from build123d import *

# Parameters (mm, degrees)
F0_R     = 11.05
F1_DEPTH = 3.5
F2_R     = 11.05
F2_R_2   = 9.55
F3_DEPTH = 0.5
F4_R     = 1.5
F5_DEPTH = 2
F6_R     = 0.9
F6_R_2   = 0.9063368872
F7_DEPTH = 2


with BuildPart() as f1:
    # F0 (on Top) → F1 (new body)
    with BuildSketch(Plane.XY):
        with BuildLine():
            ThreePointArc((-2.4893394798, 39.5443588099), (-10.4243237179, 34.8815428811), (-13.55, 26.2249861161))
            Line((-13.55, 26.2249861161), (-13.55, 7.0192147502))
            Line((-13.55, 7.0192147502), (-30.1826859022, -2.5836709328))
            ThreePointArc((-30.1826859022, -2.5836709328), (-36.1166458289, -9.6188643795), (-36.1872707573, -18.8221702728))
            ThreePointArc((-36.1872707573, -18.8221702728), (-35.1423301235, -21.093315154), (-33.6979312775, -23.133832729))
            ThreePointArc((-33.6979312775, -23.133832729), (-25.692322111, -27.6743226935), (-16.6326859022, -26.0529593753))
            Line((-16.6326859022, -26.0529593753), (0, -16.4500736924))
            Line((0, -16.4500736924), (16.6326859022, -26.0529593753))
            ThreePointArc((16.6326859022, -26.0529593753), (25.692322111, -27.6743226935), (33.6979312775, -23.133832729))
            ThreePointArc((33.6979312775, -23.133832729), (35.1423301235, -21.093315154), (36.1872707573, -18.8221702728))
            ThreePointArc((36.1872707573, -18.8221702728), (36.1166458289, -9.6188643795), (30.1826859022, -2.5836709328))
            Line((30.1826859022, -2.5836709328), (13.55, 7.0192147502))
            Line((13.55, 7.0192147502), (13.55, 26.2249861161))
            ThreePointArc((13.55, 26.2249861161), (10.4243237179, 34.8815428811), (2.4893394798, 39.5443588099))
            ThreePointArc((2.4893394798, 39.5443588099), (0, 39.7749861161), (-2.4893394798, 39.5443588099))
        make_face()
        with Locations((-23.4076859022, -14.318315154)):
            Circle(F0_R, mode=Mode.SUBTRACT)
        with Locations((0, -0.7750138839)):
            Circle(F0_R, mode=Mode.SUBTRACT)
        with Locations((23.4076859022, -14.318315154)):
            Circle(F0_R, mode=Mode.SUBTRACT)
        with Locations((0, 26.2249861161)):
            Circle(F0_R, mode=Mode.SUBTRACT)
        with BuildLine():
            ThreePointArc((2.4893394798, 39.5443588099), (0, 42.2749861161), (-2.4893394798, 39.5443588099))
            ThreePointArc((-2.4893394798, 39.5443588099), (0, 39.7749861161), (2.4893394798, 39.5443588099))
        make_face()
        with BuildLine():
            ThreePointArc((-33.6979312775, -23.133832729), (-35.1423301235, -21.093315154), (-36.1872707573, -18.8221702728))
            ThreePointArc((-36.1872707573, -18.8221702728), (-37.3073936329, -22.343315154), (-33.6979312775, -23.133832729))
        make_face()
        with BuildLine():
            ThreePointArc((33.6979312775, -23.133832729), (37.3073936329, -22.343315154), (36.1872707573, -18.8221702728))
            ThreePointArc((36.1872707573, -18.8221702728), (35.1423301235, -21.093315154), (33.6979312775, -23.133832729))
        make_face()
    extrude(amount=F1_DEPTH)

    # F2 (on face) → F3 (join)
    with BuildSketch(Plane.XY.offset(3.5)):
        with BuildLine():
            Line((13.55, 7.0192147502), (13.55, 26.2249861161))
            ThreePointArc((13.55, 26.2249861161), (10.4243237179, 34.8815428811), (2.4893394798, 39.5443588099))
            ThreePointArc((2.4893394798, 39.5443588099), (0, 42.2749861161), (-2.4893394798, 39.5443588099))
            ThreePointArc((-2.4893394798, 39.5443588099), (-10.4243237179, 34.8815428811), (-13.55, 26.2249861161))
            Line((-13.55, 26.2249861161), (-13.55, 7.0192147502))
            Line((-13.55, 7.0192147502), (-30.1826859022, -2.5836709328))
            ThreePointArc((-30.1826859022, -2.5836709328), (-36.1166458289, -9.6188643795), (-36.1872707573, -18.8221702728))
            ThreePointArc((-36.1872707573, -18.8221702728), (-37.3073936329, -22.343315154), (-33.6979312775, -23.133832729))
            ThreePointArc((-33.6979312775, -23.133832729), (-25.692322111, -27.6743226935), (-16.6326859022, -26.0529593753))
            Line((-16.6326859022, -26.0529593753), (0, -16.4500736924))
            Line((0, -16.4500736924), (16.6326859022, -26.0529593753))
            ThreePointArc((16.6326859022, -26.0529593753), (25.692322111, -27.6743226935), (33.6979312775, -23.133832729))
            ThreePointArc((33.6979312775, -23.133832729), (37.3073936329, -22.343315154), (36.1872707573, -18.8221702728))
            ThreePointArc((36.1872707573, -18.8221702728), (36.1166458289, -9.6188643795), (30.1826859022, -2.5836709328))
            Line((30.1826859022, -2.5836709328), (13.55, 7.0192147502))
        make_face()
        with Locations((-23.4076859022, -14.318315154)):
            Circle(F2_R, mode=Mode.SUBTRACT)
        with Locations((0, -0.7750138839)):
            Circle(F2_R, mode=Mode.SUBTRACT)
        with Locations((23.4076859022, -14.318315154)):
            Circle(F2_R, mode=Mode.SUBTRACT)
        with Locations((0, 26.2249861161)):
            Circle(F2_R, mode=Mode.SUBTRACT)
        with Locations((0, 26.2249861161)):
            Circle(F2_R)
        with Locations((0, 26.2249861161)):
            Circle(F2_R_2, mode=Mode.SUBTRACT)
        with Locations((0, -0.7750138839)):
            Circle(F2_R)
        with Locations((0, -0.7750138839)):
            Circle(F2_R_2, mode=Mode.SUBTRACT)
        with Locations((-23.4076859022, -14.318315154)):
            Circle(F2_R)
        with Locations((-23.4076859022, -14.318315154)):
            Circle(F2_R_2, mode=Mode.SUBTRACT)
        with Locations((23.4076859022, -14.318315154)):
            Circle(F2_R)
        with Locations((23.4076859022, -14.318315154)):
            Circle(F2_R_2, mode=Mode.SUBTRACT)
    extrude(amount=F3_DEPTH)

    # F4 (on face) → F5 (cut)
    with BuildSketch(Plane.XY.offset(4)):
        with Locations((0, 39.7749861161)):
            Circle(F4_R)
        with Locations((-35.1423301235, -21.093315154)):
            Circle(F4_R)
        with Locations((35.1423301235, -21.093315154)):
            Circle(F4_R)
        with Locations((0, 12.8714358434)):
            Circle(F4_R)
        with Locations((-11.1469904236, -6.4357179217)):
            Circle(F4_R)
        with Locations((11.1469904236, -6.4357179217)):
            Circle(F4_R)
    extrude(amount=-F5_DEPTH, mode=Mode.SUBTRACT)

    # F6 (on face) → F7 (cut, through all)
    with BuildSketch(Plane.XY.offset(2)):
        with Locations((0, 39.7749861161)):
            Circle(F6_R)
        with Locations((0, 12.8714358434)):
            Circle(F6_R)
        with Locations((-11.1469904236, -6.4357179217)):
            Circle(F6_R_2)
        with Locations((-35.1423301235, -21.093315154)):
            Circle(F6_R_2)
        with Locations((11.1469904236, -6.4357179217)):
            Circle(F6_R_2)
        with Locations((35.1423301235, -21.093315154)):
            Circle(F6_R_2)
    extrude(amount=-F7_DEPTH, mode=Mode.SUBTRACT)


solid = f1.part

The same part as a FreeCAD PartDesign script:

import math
import FreeCAD as App
import Part
import Sketcher
from FreeCAD import Vector

doc = App.newDocument("Part")
body = doc.addObject("PartDesign::Body", "Body")

# Sketch on XY plane
sketch1 = doc.addObject("Sketcher::SketchObject", "Sketch")
body.addObject(sketch1)
sketch1.AttachmentSupport = (doc.XY_Plane, [""])
sketch1.MapMode = "FlatFace"
sketch1.addGeometry([
    Part.ArcOfCircle(Part.Circle(Vector(0, 26.2, 0), Vector(0, 0, 1), 13.6), math.radians(101), math.radians(180)),  # 0
    Part.LineSegment(Vector(-13.6, 26.2, 0), Vector(-13.6, 7, 0)),  # 1
    Part.LineSegment(Vector(-13.6, 7, 0), Vector(-30.2, -2.6, 0)),  # 2
    Part.ArcOfCircle(Part.Circle(Vector(-23.4, -14.3, 0), Vector(0, 0, 1), 13.6), math.radians(120), math.radians(199)),  # 3
    Part.ArcOfCircle(Part.Circle(Vector(-35.1, -21.1, 0), Vector(0, 0, 1), 2.5), math.radians(115), math.radians(305)),  # 4
    Part.ArcOfCircle(Part.Circle(Vector(-23.4, -14.3, 0), Vector(0, 0, 1), 13.6), math.radians(-139), math.radians(-60)),  # 5
    Part.LineSegment(Vector(-16.6, -26.1, 0), Vector(0, -16.5, 0)),  # 6
    Part.LineSegment(Vector(0, -16.5, 0), Vector(16.6, -26.1, 0)),  # 7
    Part.ArcOfCircle(Part.Circle(Vector(23.4, -14.3, 0), Vector(0, 0, 1), 13.6), math.radians(-120), math.radians(-41)),  # 8
    Part.ArcOfCircle(Part.Circle(Vector(35.1, -21.1, 0), Vector(0, 0, 1), 2.5), math.radians(-125), math.radians(65)),  # 9
    Part.ArcOfCircle(Part.Circle(Vector(23.4, -14.3, 0), Vector(0, 0, 1), 13.6), math.radians(-19), math.radians(60)),  # 10
    Part.LineSegment(Vector(30.2, -2.6, 0), Vector(13.6, 7, 0)),  # 11
    Part.LineSegment(Vector(13.6, 7, 0), Vector(13.6, 26.2, 0)),  # 12
    Part.ArcOfCircle(Part.Circle(Vector(0, 26.2, 0), Vector(0, 0, 1), 13.6), math.radians(0), math.radians(79)),  # 13
    Part.ArcOfCircle(Part.Circle(Vector(0, 39.8, 0), Vector(0, 0, 1), 2.5), math.radians(-5), math.radians(185)),  # 14
    Part.Circle(Vector(-23.4, -14.3, 0), Vector(0, 0, 1), 11.1),  # 15
    Part.Circle(Vector(23.4, -14.3, 0), Vector(0, 0, 1), 11.1),  # 16
    Part.Circle(Vector(0, -0.8, 0), Vector(0, 0, 1), 11.1),  # 17
    Part.Circle(Vector(0, 26.2, 0), Vector(0, 0, 1), 11.1),  # 18
], False)
sketch1.addConstraint([
    Sketcher.Constraint("Tangent", 0, 2, 1, 1),
    Sketcher.Constraint("Coincident", 1, 2, 2, 1),
    Sketcher.Constraint("Tangent", 2, 2, 3, 1),
    Sketcher.Constraint("Coincident", 3, 2, 4, 1),
    Sketcher.Constraint("Coincident", 4, 2, 5, 1),
    Sketcher.Constraint("Tangent", 5, 2, 6, 1),
    Sketcher.Constraint("Coincident", 6, 2, 7, 1),
    Sketcher.Constraint("Tangent", 7, 2, 8, 1),
    Sketcher.Constraint("Coincident", 8, 2, 9, 1),
    Sketcher.Constraint("Coincident", 9, 2, 10, 1),
    Sketcher.Constraint("Tangent", 10, 2, 11, 1),
    Sketcher.Constraint("Coincident", 11, 2, 12, 1),
    Sketcher.Constraint("Tangent", 12, 2, 13, 1),
    Sketcher.Constraint("Coincident", 13, 2, 14, 1),
    Sketcher.Constraint("Coincident", 14, 2, 0, 1),
    Sketcher.Constraint("Vertical", 1),
    Sketcher.Constraint("Vertical", 12),
    Sketcher.Constraint("Coincident", 5, 3, 3, 3),
    Sketcher.Constraint("Coincident", 10, 3, 8, 3),
    Sketcher.Constraint("Coincident", 13, 3, 0, 3),
    Sketcher.Constraint("Coincident", 15, 3, 3, 3),
    Sketcher.Constraint("Coincident", 16, 3, 8, 3),
    Sketcher.Constraint("Coincident", 18, 3, 0, 3),
    Sketcher.Constraint("Equal", 0, 3),
    Sketcher.Constraint("Equal", 3, 5),
    Sketcher.Constraint("Equal", 5, 8),
    Sketcher.Constraint("Equal", 4, 9),
    Sketcher.Constraint("Equal", 8, 10),
    Sketcher.Constraint("Equal", 10, 13),
    Sketcher.Constraint("Equal", 9, 14),
    Sketcher.Constraint("Equal", 15, 16),
    Sketcher.Constraint("Equal", 16, 17),
    Sketcher.Constraint("Equal", 17, 18),
    Sketcher.Constraint("Symmetric", 3, 3, 8, 3, -2),
    Sketcher.Constraint("Symmetric", 4, 3, 9, 3, -2),
    Sketcher.Constraint("Symmetric", 1, 2, 11, 2, -2),
    Sketcher.Constraint("PointOnObject", 14, 3, -2),
    Sketcher.Constraint("PointOnObject", 17, 3, -2),
    Sketcher.Constraint("PointOnObject", 6, 2, -2),
    Sketcher.Constraint("Parallel", 2, 6),
    Sketcher.Constraint("Equal", 2, 6),
    Sketcher.Constraint("Diameter", 15, 22.1),
    Sketcher.Constraint("Radius", 4, 2.5),
    Sketcher.Constraint("Radius", 0, 13.55),
    Sketcher.Constraint("DistanceY", 17, 3, 0, 3, 27.0),
    Sketcher.Constraint("DistanceY", 0, 3, 14, 3, 13.55),
    Sketcher.Constraint("DistanceY", 4, 3, 3, 3, 6.775),
    Sketcher.Constraint("DistanceY", 1, 2, 1, 1, 19.205771),
    Sketcher.Constraint("DistanceY", 3, 3, 0, 3, 40.543301),
    Sketcher.Constraint("DistanceY", 3, 2, 2, 2, 16.238499),
    Sketcher.Constraint("DistanceY", 2, 2, -1, 1, 2.583671),
])
pad1 = doc.addObject("PartDesign::Pad", "Pad")
body.addObject(pad1)
pad1.Profile = sketch1
pad1.Length = 3.5

# Sketch on XY plane
sketch2 = doc.addObject("Sketcher::SketchObject", "Sketch001")
body.addObject(sketch2)
sketch2.AttachmentSupport = (doc.XY_Plane, [""])
sketch2.MapMode = "FlatFace"
sketch2.AttachmentOffset = App.Placement(Vector(0, 0, 3.5), App.Rotation())
sketch2.addGeometry([
    Part.LineSegment(Vector(13.6, 7, 0), Vector(13.6, 26.2, 0)),  # 0
    Part.ArcOfCircle(Part.Circle(Vector(0, 26.2, 0), Vector(0, 0, 1), 13.6), math.radians(0), math.radians(79)),  # 1
    Part.ArcOfCircle(Part.Circle(Vector(0, 39.8, 0), Vector(0, 0, 1), 2.5), math.radians(-5), math.radians(185)),  # 2
    Part.ArcOfCircle(Part.Circle(Vector(0, 26.2, 0), Vector(0, 0, 1), 13.6), math.radians(101), math.radians(180)),  # 3
    Part.LineSegment(Vector(-13.6, 26.2, 0), Vector(-13.6, 7, 0)),  # 4
    Part.LineSegment(Vector(-13.6, 7, 0), Vector(-30.2, -2.6, 0)),  # 5
    Part.ArcOfCircle(Part.Circle(Vector(-23.4, -14.3, 0), Vector(0, 0, 1), 13.6), math.radians(120), math.radians(199)),  # 6
    Part.ArcOfCircle(Part.Circle(Vector(-35.1, -21.1, 0), Vector(0, 0, 1), 2.5), math.radians(115), math.radians(305)),  # 7
    Part.ArcOfCircle(Part.Circle(Vector(-23.4, -14.3, 0), Vector(0, 0, 1), 13.6), math.radians(-139), math.radians(-60)),  # 8
    Part.LineSegment(Vector(-16.6, -26.1, 0), Vector(0, -16.5, 0)),  # 9
    Part.LineSegment(Vector(0, -16.5, 0), Vector(16.6, -26.1, 0)),  # 10
    Part.ArcOfCircle(Part.Circle(Vector(23.4, -14.3, 0), Vector(0, 0, 1), 13.6), math.radians(-120), math.radians(-41)),  # 11
    Part.ArcOfCircle(Part.Circle(Vector(35.1, -21.1, 0), Vector(0, 0, 1), 2.5), math.radians(-125), math.radians(65)),  # 12
    Part.ArcOfCircle(Part.Circle(Vector(23.4, -14.3, 0), Vector(0, 0, 1), 13.6), math.radians(-19), math.radians(60)),  # 13
    Part.LineSegment(Vector(30.2, -2.6, 0), Vector(13.6, 7, 0)),  # 14
    Part.Circle(Vector(-23.4, -14.3, 0), Vector(0, 0, 1), 9.6),  # 15
    Part.Circle(Vector(23.4, -14.3, 0), Vector(0, 0, 1), 9.6),  # 16
    Part.Circle(Vector(0, -0.8, 0), Vector(0, 0, 1), 9.6),  # 17
    Part.Circle(Vector(0, 26.2, 0), Vector(0, 0, 1), 9.6),  # 18
], False)
sketch2.addConstraint([
    Sketcher.Constraint("Tangent", 0, 2, 1, 1),
    Sketcher.Constraint("Coincident", 1, 2, 2, 1),
    Sketcher.Constraint("Coincident", 2, 2, 3, 1),
    Sketcher.Constraint("Tangent", 3, 2, 4, 1),
    Sketcher.Constraint("Coincident", 4, 2, 5, 1),
    Sketcher.Constraint("Tangent", 5, 2, 6, 1),
    Sketcher.Constraint("Coincident", 6, 2, 7, 1),
    Sketcher.Constraint("Coincident", 7, 2, 8, 1),
    Sketcher.Constraint("Tangent", 8, 2, 9, 1),
    Sketcher.Constraint("Coincident", 9, 2, 10, 1),
    Sketcher.Constraint("Tangent", 10, 2, 11, 1),
    Sketcher.Constraint("Coincident", 11, 2, 12, 1),
    Sketcher.Constraint("Coincident", 12, 2, 13, 1),
    Sketcher.Constraint("Tangent", 13, 2, 14, 1),
    Sketcher.Constraint("Coincident", 14, 2, 0, 1),
    Sketcher.Constraint("Vertical", 0),
    Sketcher.Constraint("Vertical", 4),
    Sketcher.Constraint("Coincident", 3, 3, 1, 3),
    Sketcher.Constraint("Coincident", 8, 3, 6, 3),
    Sketcher.Constraint("Coincident", 13, 3, 11, 3),
    Sketcher.Constraint("Coincident", 15, 3, 6, 3),
    Sketcher.Constraint("Coincident", 16, 3, 11, 3),
    Sketcher.Constraint("Coincident", 18, 3, 1, 3),
    Sketcher.Constraint("Equal", 1, 3),
    Sketcher.Constraint("Equal", 3, 6),
    Sketcher.Constraint("Equal", 2, 7),
    Sketcher.Constraint("Equal", 6, 8),
    Sketcher.Constraint("Equal", 8, 11),
    Sketcher.Constraint("Equal", 7, 12),
    Sketcher.Constraint("Equal", 11, 13),
    Sketcher.Constraint("Equal", 15, 16),
    Sketcher.Constraint("Equal", 16, 17),
    Sketcher.Constraint("Equal", 17, 18),
    Sketcher.Constraint("Symmetric", 6, 3, 11, 3, -2),
    Sketcher.Constraint("Symmetric", 7, 3, 12, 3, -2),
    Sketcher.Constraint("Symmetric", 1, 2, 2, 2, -2),
    Sketcher.Constraint("PointOnObject", 17, 3, -2),
    Sketcher.Constraint("PointOnObject", 9, 2, -2),
    Sketcher.Constraint("Parallel", 5, 9),
    Sketcher.Constraint("Parallel", 10, 14),
    Sketcher.Constraint("Equal", 5, 9),
    Sketcher.Constraint("Diameter", 15, 19.1),
    Sketcher.Constraint("Radius", 2, 2.5),
    Sketcher.Constraint("Radius", 1, 13.55),
    Sketcher.Constraint("DistanceY", 17, 3, 1, 3, 27.0),
    Sketcher.Constraint("DistanceY", 1, 3, 2, 3, 13.55),
    Sketcher.Constraint("DistanceY", 7, 3, 6, 3, 6.775),
    Sketcher.Constraint("DistanceY", 0, 1, 0, 2, 19.205771),
    Sketcher.Constraint("DistanceY", 6, 3, 1, 3, 40.543301),
    Sketcher.Constraint("DistanceY", 6, 2, 5, 2, 16.238499),
    Sketcher.Constraint("DistanceY", -1, 1, 1, 2, 39.544359),
])
pad2 = doc.addObject("PartDesign::Pad", "Pad001")
body.addObject(pad2)
pad2.Profile = sketch2
pad2.Length = 0.5

# Sketch on XY plane
sketch3 = doc.addObject("Sketcher::SketchObject", "Sketch002")
body.addObject(sketch3)
sketch3.AttachmentSupport = (doc.XY_Plane, [""])
sketch3.MapMode = "FlatFace"
sketch3.AttachmentOffset = App.Placement(Vector(0, 0, 4), App.Rotation())
sketch3.addGeometry([
    Part.Circle(Vector(0, 39.8, 0), Vector(0, 0, 1), 1.5),  # 0
    Part.Circle(Vector(-35.1, -21.1, 0), Vector(0, 0, 1), 1.5),  # 1
    Part.Circle(Vector(35.1, -21.1, 0), Vector(0, 0, 1), 1.5),  # 2
    Part.Circle(Vector(0, 12.9, 0), Vector(0, 0, 1), 1.5),  # 3
    Part.Circle(Vector(-11.1, -6.4, 0), Vector(0, 0, 1), 1.5),  # 4
    Part.Circle(Vector(11.1, -6.4, 0), Vector(0, 0, 1), 1.5),  # 5
], False)
sketch3.addConstraint([
    Sketcher.Constraint("Equal", 0, 1),
    Sketcher.Constraint("Equal", 1, 2),
    Sketcher.Constraint("Equal", 2, 3),
    Sketcher.Constraint("Equal", 3, 4),
    Sketcher.Constraint("Equal", 4, 5),
    Sketcher.Constraint("Symmetric", 1, 3, 2, 3, -2),
    Sketcher.Constraint("Symmetric", 4, 3, 5, 3, -2),
    Sketcher.Constraint("PointOnObject", 0, 3, -2),
    Sketcher.Constraint("PointOnObject", 3, 3, -2),
    Sketcher.Constraint("Diameter", 0, 3.0),
    Sketcher.Constraint("DistanceY", 1, 3, 0, 3, 60.868301),
    Sketcher.Constraint("DistanceX", 1, 3, -1, 1, 35.14233),
    Sketcher.Constraint("DistanceX", 4, 3, -1, 1, 11.14699),
    Sketcher.Constraint("DistanceY", 3, 3, 0, 3, 26.90355),
    Sketcher.Constraint("DistanceY", -1, 1, 0, 3, 39.774986),
    Sketcher.Constraint("DistanceY", 4, 3, -1, 1, 6.435718),
])
pocket1 = doc.addObject("PartDesign::Pocket", "Pocket")
body.addObject(pocket1)
pocket1.Profile = sketch3
pocket1.Length = 2

# Sketch on XY plane
sketch4 = doc.addObject("Sketcher::SketchObject", "Sketch003")
body.addObject(sketch4)
sketch4.AttachmentSupport = (doc.XY_Plane, [""])
sketch4.MapMode = "FlatFace"
sketch4.AttachmentOffset = App.Placement(Vector(0, 0, 2), App.Rotation())
sketch4.addGeometry([
    Part.Circle(Vector(0, 39.8, 0), Vector(0, 0, 1), 0.9),  # 0
    Part.Circle(Vector(0, 12.9, 0), Vector(0, 0, 1), 0.9),  # 1
    Part.Circle(Vector(-11.1, -6.4, 0), Vector(0, 0, 1), 0.9),  # 2
    Part.Circle(Vector(-35.1, -21.1, 0), Vector(0, 0, 1), 0.9),  # 3
    Part.Circle(Vector(11.1, -6.4, 0), Vector(0, 0, 1), 0.9),  # 4
    Part.Circle(Vector(35.1, -21.1, 0), Vector(0, 0, 1), 0.9),  # 5
], False)
sketch4.addConstraint([
    Sketcher.Constraint("Equal", 0, 1),
    Sketcher.Constraint("Equal", 2, 3),
    Sketcher.Constraint("Equal", 3, 4),
    Sketcher.Constraint("Equal", 4, 5),
    Sketcher.Constraint("Symmetric", 2, 3, 4, 3, -2),
    Sketcher.Constraint("Symmetric", 3, 3, 5, 3, -2),
    Sketcher.Constraint("PointOnObject", 0, 3, -2),
    Sketcher.Constraint("PointOnObject", 1, 3, -2),
    Sketcher.Constraint("Diameter", 0, 1.8),
    Sketcher.Constraint("Diameter", 2, 1.812674),
    Sketcher.Constraint("DistanceY", 3, 3, 0, 3, 60.868301),
    Sketcher.Constraint("DistanceX", 2, 3, -1, 1, 11.14699),
    Sketcher.Constraint("DistanceX", 3, 3, -1, 1, 35.14233),
    Sketcher.Constraint("DistanceY", 1, 3, 0, 3, 26.90355),
    Sketcher.Constraint("DistanceY", -1, 1, 0, 3, 39.774986),
    Sketcher.Constraint("DistanceY", 2, 3, -1, 1, 6.435718),
])
pocket2 = doc.addObject("PartDesign::Pocket", "Pocket001")
body.addObject(pocket2)
pocket2.Profile = sketch4
pocket2.Type = "ThroughAll"

doc.recompute()
